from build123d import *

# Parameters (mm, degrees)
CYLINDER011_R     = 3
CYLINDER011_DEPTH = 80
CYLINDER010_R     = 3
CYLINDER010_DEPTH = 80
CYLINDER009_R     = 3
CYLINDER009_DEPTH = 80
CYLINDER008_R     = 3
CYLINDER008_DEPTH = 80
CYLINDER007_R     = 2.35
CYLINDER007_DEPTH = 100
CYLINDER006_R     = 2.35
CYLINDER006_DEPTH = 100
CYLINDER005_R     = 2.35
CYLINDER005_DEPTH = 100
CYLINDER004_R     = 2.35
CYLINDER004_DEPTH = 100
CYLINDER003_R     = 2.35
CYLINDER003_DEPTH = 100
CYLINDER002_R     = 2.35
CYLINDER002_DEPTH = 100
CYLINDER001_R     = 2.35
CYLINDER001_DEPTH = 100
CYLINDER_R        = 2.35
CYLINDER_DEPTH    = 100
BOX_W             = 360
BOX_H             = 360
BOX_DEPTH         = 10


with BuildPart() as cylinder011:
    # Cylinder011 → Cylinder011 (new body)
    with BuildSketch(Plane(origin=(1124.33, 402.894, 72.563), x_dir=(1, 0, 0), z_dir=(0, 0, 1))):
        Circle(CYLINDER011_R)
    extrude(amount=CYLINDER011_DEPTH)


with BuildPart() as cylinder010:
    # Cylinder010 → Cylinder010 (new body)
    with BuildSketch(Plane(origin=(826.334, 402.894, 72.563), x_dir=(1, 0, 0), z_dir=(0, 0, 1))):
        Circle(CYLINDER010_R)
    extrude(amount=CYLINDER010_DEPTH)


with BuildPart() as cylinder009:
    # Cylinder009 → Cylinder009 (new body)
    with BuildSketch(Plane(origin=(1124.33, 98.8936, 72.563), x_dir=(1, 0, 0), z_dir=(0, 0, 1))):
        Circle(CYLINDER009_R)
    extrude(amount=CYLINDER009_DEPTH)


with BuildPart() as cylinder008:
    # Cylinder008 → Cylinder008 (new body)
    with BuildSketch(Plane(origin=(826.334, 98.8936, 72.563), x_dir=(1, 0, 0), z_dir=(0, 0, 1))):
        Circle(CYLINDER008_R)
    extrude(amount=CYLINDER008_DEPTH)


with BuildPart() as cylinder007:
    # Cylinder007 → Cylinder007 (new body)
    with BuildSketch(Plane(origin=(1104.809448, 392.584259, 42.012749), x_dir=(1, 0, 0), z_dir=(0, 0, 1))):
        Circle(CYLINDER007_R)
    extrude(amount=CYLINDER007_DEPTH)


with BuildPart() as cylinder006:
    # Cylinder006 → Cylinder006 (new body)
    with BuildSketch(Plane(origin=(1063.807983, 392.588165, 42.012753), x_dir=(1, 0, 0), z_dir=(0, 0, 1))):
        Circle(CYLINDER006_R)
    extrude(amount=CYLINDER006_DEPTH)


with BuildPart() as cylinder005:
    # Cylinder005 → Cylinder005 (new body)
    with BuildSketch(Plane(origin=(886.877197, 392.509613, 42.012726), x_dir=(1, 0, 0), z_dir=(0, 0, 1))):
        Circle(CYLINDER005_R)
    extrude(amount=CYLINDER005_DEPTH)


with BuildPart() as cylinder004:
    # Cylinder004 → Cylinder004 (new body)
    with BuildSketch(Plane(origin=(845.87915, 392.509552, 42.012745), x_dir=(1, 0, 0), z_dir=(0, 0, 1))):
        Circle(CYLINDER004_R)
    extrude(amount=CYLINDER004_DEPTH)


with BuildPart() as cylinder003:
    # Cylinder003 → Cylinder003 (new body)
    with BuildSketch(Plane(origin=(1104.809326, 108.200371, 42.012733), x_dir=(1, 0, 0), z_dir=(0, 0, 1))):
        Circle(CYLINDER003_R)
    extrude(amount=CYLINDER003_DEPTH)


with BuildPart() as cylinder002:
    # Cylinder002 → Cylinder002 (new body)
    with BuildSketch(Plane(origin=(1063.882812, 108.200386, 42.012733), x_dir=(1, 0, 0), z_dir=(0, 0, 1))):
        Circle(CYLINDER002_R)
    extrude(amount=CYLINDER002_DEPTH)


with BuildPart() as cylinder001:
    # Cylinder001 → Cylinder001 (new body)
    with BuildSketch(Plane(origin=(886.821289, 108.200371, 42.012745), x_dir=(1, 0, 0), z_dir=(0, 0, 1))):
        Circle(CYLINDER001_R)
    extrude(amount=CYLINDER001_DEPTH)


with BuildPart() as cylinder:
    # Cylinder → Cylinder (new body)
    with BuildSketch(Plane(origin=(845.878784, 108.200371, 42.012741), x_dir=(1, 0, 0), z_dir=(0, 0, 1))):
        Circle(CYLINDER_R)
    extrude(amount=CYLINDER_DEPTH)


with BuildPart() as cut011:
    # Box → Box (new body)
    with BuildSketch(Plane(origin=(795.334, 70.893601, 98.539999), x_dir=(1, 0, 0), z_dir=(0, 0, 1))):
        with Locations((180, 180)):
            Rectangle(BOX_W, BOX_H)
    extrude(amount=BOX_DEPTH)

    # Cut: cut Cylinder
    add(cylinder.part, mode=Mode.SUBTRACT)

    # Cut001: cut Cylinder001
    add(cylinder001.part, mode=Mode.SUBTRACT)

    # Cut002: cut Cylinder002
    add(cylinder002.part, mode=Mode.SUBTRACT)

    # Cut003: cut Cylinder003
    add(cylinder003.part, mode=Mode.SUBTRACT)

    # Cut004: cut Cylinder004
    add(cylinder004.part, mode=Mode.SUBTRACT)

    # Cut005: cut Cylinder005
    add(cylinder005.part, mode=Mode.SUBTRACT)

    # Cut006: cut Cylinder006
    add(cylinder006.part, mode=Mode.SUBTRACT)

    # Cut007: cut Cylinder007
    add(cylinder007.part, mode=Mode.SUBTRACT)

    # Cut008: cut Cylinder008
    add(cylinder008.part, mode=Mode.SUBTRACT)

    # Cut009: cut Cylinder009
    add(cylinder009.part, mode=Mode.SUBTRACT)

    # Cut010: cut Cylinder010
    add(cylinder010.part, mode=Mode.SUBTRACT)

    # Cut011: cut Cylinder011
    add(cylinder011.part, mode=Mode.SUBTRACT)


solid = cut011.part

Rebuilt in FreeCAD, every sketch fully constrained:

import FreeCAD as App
import Part
import Sketcher
from FreeCAD import Vector


def add_polygon(sketch, points):
    """Adds a closed chain of lines whose ends are joined by coincident constraints."""
    first, n = sketch.GeometryCount, len(points)
    for a, b in zip(points, points[1:] + points[:1]):
        sketch.addGeometry(Part.LineSegment(App.Vector(*a, 0), App.Vector(*b, 0)), False)
    for i in range(n):
        sketch.addConstraint(Sketcher.Constraint("Coincident", first + i, 2, first + (i + 1) % n, 1))

doc = App.newDocument("Part")
body = doc.addObject("PartDesign::Body", "Body")

# Sketch on XY plane
sketch1 = body.newObject("Sketcher::SketchObject", "Sketch")
sketch1.AttachmentSupport = (doc.getObject("XY_Plane"), [""])
sketch1.MapMode = "FlatFace"
sketch1.AttachmentOffset = App.Placement(Vector(0, 0, 72.563), App.Rotation())
sketch1.addGeometry(Part.Circle(Vector(1124.33, 402.894, 0), Vector(0, 0, 1), 3), False)
sketch1.addConstraint(Sketcher.Constraint("Diameter", 0, 6.0))
sketch1.addConstraint(Sketcher.Constraint("DistanceX", -1, 1, 0, 3, 1124.33))
sketch1.addConstraint(Sketcher.Constraint("DistanceY", -1, 1, 0, 3, 402.894))
pad1 = body.newObject("PartDesign::Pad", "Pad")
pad1.Profile = sketch1
pad1.Length = 80
body2 = doc.addObject("PartDesign::Body", "Body001")

# Sketch on XY plane
sketch2 = body2.newObject("Sketcher::SketchObject", "Sketch001")
sketch2.AttachmentSupport = (doc.getObject("XY_Plane001"), [""])
sketch2.MapMode = "FlatFace"
sketch2.AttachmentOffset = App.Placement(Vector(0, 0, 72.563), App.Rotation())
sketch2.addGeometry(Part.Circle(Vector(826.334, 402.894, 0), Vector(0, 0, 1), 3), False)
sketch2.addConstraint(Sketcher.Constraint("Diameter", 0, 6.0))
sketch2.addConstraint(Sketcher.Constraint("DistanceX", -1, 1, 0, 3, 826.334))
sketch2.addConstraint(Sketcher.Constraint("DistanceY", -1, 1, 0, 3, 402.894))
pad2 = body2.newObject("PartDesign::Pad", "Pad001")
pad2.Profile = sketch2
pad2.Length = 80
body3 = doc.addObject("PartDesign::Body", "Body002")

# Sketch on XY plane
sketch3 = body3.newObject("Sketcher::SketchObject", "Sketch002")
sketch3.AttachmentSupport = (doc.getObject("XY_Plane002"), [""])
sketch3.MapMode = "FlatFace"
sketch3.AttachmentOffset = App.Placement(Vector(0, 0, 72.563), App.Rotation())
sketch3.addGeometry(Part.Circle(Vector(1124.33, 98.8936, 0), Vector(0, 0, 1), 3), False)
sketch3.addConstraint(Sketcher.Constraint("Diameter", 0, 6.0))
sketch3.addConstraint(Sketcher.Constraint("DistanceX", -1, 1, 0, 3, 1124.33))
sketch3.addConstraint(Sketcher.Constraint("DistanceY", -1, 1, 0, 3, 98.8936))
pad3 = body3.newObject("PartDesign::Pad", "Pad002")
pad3.Profile = sketch3
pad3.Length = 80
body4 = doc.addObject("PartDesign::Body", "Body003")

# Sketch on XY plane
sketch4 = body4.newObject("Sketcher::SketchObject", "Sketch003")
sketch4.AttachmentSupport = (doc.getObject("XY_Plane003"), [""])
sketch4.MapMode = "FlatFace"
sketch4.AttachmentOffset = App.Placement(Vector(0, 0, 72.563), App.Rotation())
sketch4.addGeometry(Part.Circle(Vector(826.334, 98.8936, 0), Vector(0, 0, 1), 3), False)
sketch4.addConstraint(Sketcher.Constraint("Diameter", 0, 6.0))
sketch4.addConstraint(Sketcher.Constraint("DistanceX", -1, 1, 0, 3, 826.334))
sketch4.addConstraint(Sketcher.Constraint("DistanceY", -1, 1, 0, 3, 98.8936))
pad4 = body4.newObject("PartDesign::Pad", "Pad003")
pad4.Profile = sketch4
pad4.Length = 80
body5 = doc.addObject("PartDesign::Body", "Body004")

# Sketch on XY plane
sketch5 = body5.newObject("Sketcher::SketchObject", "Sketch004")
sketch5.AttachmentSupport = (doc.getObject("XY_Plane004"), [""])
sketch5.MapMode = "FlatFace"
sketch5.AttachmentOffset = App.Placement(Vector(0, 0, 42.012749), App.Rotation())
sketch5.addGeometry(Part.Circle(Vector(1104.809448, 392.584259, 0), Vector(0, 0, 1), 2.35), False)
sketch5.addConstraint(Sketcher.Constraint("Diameter", 0, 4.7))
sketch5.addConstraint(Sketcher.Constraint("DistanceX", -1, 1, 0, 3, 1104.809448))
sketch5.addConstraint(Sketcher.Constraint("DistanceY", -1, 1, 0, 3, 392.584259))
pad5 = body5.newObject("PartDesign::Pad", "Pad004")
pad5.Profile = sketch5
pad5.Length = 100
body6 = doc.addObject("PartDesign::Body", "Body005")

# Sketch on XY plane
sketch6 = body6.newObject("Sketcher::SketchObject", "Sketch005")
sketch6.AttachmentSupport = (doc.getObject("XY_Plane005"), [""])
sketch6.MapMode = "FlatFace"
sketch6.AttachmentOffset = App.Placement(Vector(0, 0, 42.012753), App.Rotation())
sketch6.addGeometry(Part.Circle(Vector(1063.807983, 392.588165, 0), Vector(0, 0, 1), 2.35), False)
sketch6.addConstraint(Sketcher.Constraint("Diameter", 0, 4.7))
sketch6.addConstraint(Sketcher.Constraint("DistanceX", -1, 1, 0, 3, 1063.807983))
sketch6.addConstraint(Sketcher.Constraint("DistanceY", -1, 1, 0, 3, 392.588165))
pad6 = body6.newObject("PartDesign::Pad", "Pad005")
pad6.Profile = sketch6
pad6.Length = 100
body7 = doc.addObject("PartDesign::Body", "Body006")

# Sketch on XY plane
sketch7 = body7.newObject("Sketcher::SketchObject", "Sketch006")
sketch7.AttachmentSupport = (doc.getObject("XY_Plane006"), [""])
sketch7.MapMode = "FlatFace"
sketch7.AttachmentOffset = App.Placement(Vector(0, 0, 42.012726), App.Rotation())
sketch7.addGeometry(Part.Circle(Vector(886.877197, 392.509613, 0), Vector(0, 0, 1), 2.35), False)
sketch7.addConstraint(Sketcher.Constraint("Diameter", 0, 4.7))
sketch7.addConstraint(Sketcher.Constraint("DistanceX", -1, 1, 0, 3, 886.877197))
sketch7.addConstraint(Sketcher.Constraint("DistanceY", -1, 1, 0, 3, 392.509613))
pad7 = body7.newObject("PartDesign::Pad", "Pad006")
pad7.Profile = sketch7
pad7.Length = 100
body8 = doc.addObject("PartDesign::Body", "Body007")

# Sketch on XY plane
sketch8 = body8.newObject("Sketcher::SketchObject", "Sketch007")
sketch8.AttachmentSupport = (doc.getObject("XY_Plane007"), [""])
sketch8.MapMode = "FlatFace"
sketch8.AttachmentOffset = App.Placement(Vector(0, 0, 42.012745), App.Rotation())
sketch8.addGeometry(Part.Circle(Vector(845.87915, 392.509552, 0), Vector(0, 0, 1), 2.35), False)
sketch8.addConstraint(Sketcher.Constraint("Diameter", 0, 4.7))
sketch8.addConstraint(Sketcher.Constraint("DistanceX", -1, 1, 0, 3, 845.87915))
sketch8.addConstraint(Sketcher.Constraint("DistanceY", -1, 1, 0, 3, 392.509552))
pad8 = body8.newObject("PartDesign::Pad", "Pad007")
pad8.Profile = sketch8
pad8.Length = 100
body9 = doc.addObject("PartDesign::Body", "Body008")

# Sketch on XY plane
sketch9 = body9.newObject("Sketcher::SketchObject", "Sketch008")
sketch9.AttachmentSupport = (doc.getObject("XY_Plane008"), [""])
sketch9.MapMode = "FlatFace"
sketch9.AttachmentOffset = App.Placement(Vector(0, 0, 42.012733), App.Rotation())
sketch9.addGeometry(Part.Circle(Vector(1104.809326, 108.200371, 0), Vector(0, 0, 1), 2.35), False)
sketch9.addConstraint(Sketcher.Constraint("Diameter", 0, 4.7))
sketch9.addConstraint(Sketcher.Constraint("DistanceY", -1, 1, 0, 3, 108.200371))
sketch9.addConstraint(Sketcher.Constraint("DistanceX", -1, 1, 0, 3, 1104.809326))
pad9 = body9.newObject("PartDesign::Pad", "Pad008")
pad9.Profile = sketch9
pad9.Length = 100
body10 = doc.addObject("PartDesign::Body", "Body009")

# Sketch on XY plane
sketch10 = body10.newObject("Sketcher::SketchObject", "Sketch009")
sketch10.AttachmentSupport = (doc.getObject("XY_Plane009"), [""])
sketch10.MapMode = "FlatFace"
sketch10.AttachmentOffset = App.Placement(Vector(0, 0, 42.012733), App.Rotation())
sketch10.addGeometry(Part.Circle(Vector(1063.882812, 108.200386, 0), Vector(0, 0, 1), 2.35), False)
sketch10.addConstraint(Sketcher.Constraint("Diameter", 0, 4.7))
sketch10.addConstraint(Sketcher.Constraint("DistanceX", -1, 1, 0, 3, 1063.882812))
sketch10.addConstraint(Sketcher.Constraint("DistanceY", -1, 1, 0, 3, 108.200386))
pad10 = body10.newObject("PartDesign::Pad", "Pad009")
pad10.Profile = sketch10
pad10.Length = 100
body11 = doc.addObject("PartDesign::Body", "Body010")

# Sketch on XY plane
sketch11 = body11.newObject("Sketcher::SketchObject", "Sketch010")
sketch11.AttachmentSupport = (doc.getObject("XY_Plane010"), [""])
sketch11.MapMode = "FlatFace"
sketch11.AttachmentOffset = App.Placement(Vector(0, 0, 42.012745), App.Rotation())
sketch11.addGeometry(Part.Circle(Vector(886.821289, 108.200371, 0), Vector(0, 0, 1), 2.35), False)
sketch11.addConstraint(Sketcher.Constraint("Diameter", 0, 4.7))
sketch11.addConstraint(Sketcher.Constraint("DistanceX", -1, 1, 0, 3, 886.821289))
sketch11.addConstraint(Sketcher.Constraint("DistanceY", -1, 1, 0, 3, 108.200371))
pad11 = body11.newObject("PartDesign::Pad", "Pad010")
pad11.Profile = sketch11
pad11.Length = 100
body12 = doc.addObject("PartDesign::Body", "Body011")

# Sketch on XY plane
sketch12 = body12.newObject("Sketcher::SketchObject", "Sketch011")
sketch12.AttachmentSupport = (doc.getObject("XY_Plane011"), [""])
sketch12.MapMode = "FlatFace"
sketch12.AttachmentOffset = App.Placement(Vector(0, 0, 42.012741), App.Rotation())
sketch12.addGeometry(Part.Circle(Vector(845.878784, 108.200371, 0), Vector(0, 0, 1), 2.35), False)
sketch12.addConstraint(Sketcher.Constraint("Diameter", 0, 4.7))
sketch12.addConstraint(Sketcher.Constraint("DistanceY", -1, 1, 0, 3, 108.200371))
sketch12.addConstraint(Sketcher.Constraint("DistanceX", -1, 1, 0, 3, 845.878784))
pad12 = body12.newObject("PartDesign::Pad", "Pad011")
pad12.Profile = sketch12
pad12.Length = 100
body13 = doc.addObject("PartDesign::Body", "Body012")

# Sketch on XY plane
sketch13 = body13.newObject("Sketcher::SketchObject", "Sketch012")
sketch13.AttachmentSupport = (doc.getObject("XY_Plane012"), [""])
sketch13.MapMode = "FlatFace"
sketch13.AttachmentOffset = App.Placement(Vector(0, 0, 98.539999), App.Rotation())
add_polygon(sketch13, [(795.334, 430.893601), (795.334, 70.893601), (1155.334, 70.893601), (1155.334, 430.893601)])  # lines 0-3
sketch13.addConstraint(Sketcher.Constraint("Vertical", 0))
sketch13.addConstraint(Sketcher.Constraint("Horizontal", 1))
sketch13.addConstraint(Sketcher.Constraint("Vertical", 2))
sketch13.addConstraint(Sketcher.Constraint("Horizontal", 3))
sketch13.addConstraint(Sketcher.Constraint("Equal", 3, 0))
sketch13.addConstraint(Sketcher.Constraint("DistanceX", 1, 1, 1, 2, 360.0))
sketch13.addConstraint(Sketcher.Constraint("DistanceX", -1, 1, 0, 2, 795.334))
sketch13.addConstraint(Sketcher.Constraint("DistanceY", -1, 1, 0, 2, 70.893601))
pad13 = body13.newObject("PartDesign::Pad", "Pad012")
pad13.Profile = sketch13
pad13.Length = 10
doc.recompute()

boolean = body13.newObject("PartDesign::Boolean", "Boolean")
boolean.Type = "Cut"
boolean.addObjects([body12])
doc.recompute()

boolean2 = body13.newObject("PartDesign::Boolean", "Boolean001")
boolean2.Type = "Cut"
boolean2.addObjects([body11])
doc.recompute()

boolean3 = body13.newObject("PartDesign::Boolean", "Boolean002")
boolean3.Type = "Cut"
boolean3.addObjects([body10])
doc.recompute()

boolean4 = body13.newObject("PartDesign::Boolean", "Boolean003")
boolean4.Type = "Cut"
boolean4.addObjects([body9])
doc.recompute()

boolean5 = body13.newObject("PartDesign::Boolean", "Boolean004")
boolean5.Type = "Cut"
boolean5.addObjects([body8])
doc.recompute()

boolean6 = body13.newObject("PartDesign::Boolean", "Boolean005")
boolean6.Type = "Cut"
boolean6.addObjects([body7])
doc.recompute()

boolean7 = body13.newObject("PartDesign::Boolean", "Boolean006")
boolean7.Type = "Cut"
boolean7.addObjects([body6])
doc.recompute()

boolean8 = body13.newObject("PartDesign::Boolean", "Boolean007")
boolean8.Type = "Cut"
boolean8.addObjects([body5])
doc.recompute()

boolean9 = body13.newObject("PartDesign::Boolean", "Boolean008")
boolean9.Type = "Cut"
boolean9.addObjects([body4])
doc.recompute()

boolean10 = body13.newObject("PartDesign::Boolean", "Boolean009")
boolean10.Type = "Cut"
boolean10.addObjects([body3])
doc.recompute()

boolean11 = body13.newObject("PartDesign::Boolean", "Boolean010")
boolean11.Type = "Cut"
boolean11.addObjects([body2])
doc.recompute()

boolean12 = body13.newObject("PartDesign::Boolean", "Boolean011")
boolean12.Type = "Cut"
boolean12.addObjects([body])

doc.recompute()
